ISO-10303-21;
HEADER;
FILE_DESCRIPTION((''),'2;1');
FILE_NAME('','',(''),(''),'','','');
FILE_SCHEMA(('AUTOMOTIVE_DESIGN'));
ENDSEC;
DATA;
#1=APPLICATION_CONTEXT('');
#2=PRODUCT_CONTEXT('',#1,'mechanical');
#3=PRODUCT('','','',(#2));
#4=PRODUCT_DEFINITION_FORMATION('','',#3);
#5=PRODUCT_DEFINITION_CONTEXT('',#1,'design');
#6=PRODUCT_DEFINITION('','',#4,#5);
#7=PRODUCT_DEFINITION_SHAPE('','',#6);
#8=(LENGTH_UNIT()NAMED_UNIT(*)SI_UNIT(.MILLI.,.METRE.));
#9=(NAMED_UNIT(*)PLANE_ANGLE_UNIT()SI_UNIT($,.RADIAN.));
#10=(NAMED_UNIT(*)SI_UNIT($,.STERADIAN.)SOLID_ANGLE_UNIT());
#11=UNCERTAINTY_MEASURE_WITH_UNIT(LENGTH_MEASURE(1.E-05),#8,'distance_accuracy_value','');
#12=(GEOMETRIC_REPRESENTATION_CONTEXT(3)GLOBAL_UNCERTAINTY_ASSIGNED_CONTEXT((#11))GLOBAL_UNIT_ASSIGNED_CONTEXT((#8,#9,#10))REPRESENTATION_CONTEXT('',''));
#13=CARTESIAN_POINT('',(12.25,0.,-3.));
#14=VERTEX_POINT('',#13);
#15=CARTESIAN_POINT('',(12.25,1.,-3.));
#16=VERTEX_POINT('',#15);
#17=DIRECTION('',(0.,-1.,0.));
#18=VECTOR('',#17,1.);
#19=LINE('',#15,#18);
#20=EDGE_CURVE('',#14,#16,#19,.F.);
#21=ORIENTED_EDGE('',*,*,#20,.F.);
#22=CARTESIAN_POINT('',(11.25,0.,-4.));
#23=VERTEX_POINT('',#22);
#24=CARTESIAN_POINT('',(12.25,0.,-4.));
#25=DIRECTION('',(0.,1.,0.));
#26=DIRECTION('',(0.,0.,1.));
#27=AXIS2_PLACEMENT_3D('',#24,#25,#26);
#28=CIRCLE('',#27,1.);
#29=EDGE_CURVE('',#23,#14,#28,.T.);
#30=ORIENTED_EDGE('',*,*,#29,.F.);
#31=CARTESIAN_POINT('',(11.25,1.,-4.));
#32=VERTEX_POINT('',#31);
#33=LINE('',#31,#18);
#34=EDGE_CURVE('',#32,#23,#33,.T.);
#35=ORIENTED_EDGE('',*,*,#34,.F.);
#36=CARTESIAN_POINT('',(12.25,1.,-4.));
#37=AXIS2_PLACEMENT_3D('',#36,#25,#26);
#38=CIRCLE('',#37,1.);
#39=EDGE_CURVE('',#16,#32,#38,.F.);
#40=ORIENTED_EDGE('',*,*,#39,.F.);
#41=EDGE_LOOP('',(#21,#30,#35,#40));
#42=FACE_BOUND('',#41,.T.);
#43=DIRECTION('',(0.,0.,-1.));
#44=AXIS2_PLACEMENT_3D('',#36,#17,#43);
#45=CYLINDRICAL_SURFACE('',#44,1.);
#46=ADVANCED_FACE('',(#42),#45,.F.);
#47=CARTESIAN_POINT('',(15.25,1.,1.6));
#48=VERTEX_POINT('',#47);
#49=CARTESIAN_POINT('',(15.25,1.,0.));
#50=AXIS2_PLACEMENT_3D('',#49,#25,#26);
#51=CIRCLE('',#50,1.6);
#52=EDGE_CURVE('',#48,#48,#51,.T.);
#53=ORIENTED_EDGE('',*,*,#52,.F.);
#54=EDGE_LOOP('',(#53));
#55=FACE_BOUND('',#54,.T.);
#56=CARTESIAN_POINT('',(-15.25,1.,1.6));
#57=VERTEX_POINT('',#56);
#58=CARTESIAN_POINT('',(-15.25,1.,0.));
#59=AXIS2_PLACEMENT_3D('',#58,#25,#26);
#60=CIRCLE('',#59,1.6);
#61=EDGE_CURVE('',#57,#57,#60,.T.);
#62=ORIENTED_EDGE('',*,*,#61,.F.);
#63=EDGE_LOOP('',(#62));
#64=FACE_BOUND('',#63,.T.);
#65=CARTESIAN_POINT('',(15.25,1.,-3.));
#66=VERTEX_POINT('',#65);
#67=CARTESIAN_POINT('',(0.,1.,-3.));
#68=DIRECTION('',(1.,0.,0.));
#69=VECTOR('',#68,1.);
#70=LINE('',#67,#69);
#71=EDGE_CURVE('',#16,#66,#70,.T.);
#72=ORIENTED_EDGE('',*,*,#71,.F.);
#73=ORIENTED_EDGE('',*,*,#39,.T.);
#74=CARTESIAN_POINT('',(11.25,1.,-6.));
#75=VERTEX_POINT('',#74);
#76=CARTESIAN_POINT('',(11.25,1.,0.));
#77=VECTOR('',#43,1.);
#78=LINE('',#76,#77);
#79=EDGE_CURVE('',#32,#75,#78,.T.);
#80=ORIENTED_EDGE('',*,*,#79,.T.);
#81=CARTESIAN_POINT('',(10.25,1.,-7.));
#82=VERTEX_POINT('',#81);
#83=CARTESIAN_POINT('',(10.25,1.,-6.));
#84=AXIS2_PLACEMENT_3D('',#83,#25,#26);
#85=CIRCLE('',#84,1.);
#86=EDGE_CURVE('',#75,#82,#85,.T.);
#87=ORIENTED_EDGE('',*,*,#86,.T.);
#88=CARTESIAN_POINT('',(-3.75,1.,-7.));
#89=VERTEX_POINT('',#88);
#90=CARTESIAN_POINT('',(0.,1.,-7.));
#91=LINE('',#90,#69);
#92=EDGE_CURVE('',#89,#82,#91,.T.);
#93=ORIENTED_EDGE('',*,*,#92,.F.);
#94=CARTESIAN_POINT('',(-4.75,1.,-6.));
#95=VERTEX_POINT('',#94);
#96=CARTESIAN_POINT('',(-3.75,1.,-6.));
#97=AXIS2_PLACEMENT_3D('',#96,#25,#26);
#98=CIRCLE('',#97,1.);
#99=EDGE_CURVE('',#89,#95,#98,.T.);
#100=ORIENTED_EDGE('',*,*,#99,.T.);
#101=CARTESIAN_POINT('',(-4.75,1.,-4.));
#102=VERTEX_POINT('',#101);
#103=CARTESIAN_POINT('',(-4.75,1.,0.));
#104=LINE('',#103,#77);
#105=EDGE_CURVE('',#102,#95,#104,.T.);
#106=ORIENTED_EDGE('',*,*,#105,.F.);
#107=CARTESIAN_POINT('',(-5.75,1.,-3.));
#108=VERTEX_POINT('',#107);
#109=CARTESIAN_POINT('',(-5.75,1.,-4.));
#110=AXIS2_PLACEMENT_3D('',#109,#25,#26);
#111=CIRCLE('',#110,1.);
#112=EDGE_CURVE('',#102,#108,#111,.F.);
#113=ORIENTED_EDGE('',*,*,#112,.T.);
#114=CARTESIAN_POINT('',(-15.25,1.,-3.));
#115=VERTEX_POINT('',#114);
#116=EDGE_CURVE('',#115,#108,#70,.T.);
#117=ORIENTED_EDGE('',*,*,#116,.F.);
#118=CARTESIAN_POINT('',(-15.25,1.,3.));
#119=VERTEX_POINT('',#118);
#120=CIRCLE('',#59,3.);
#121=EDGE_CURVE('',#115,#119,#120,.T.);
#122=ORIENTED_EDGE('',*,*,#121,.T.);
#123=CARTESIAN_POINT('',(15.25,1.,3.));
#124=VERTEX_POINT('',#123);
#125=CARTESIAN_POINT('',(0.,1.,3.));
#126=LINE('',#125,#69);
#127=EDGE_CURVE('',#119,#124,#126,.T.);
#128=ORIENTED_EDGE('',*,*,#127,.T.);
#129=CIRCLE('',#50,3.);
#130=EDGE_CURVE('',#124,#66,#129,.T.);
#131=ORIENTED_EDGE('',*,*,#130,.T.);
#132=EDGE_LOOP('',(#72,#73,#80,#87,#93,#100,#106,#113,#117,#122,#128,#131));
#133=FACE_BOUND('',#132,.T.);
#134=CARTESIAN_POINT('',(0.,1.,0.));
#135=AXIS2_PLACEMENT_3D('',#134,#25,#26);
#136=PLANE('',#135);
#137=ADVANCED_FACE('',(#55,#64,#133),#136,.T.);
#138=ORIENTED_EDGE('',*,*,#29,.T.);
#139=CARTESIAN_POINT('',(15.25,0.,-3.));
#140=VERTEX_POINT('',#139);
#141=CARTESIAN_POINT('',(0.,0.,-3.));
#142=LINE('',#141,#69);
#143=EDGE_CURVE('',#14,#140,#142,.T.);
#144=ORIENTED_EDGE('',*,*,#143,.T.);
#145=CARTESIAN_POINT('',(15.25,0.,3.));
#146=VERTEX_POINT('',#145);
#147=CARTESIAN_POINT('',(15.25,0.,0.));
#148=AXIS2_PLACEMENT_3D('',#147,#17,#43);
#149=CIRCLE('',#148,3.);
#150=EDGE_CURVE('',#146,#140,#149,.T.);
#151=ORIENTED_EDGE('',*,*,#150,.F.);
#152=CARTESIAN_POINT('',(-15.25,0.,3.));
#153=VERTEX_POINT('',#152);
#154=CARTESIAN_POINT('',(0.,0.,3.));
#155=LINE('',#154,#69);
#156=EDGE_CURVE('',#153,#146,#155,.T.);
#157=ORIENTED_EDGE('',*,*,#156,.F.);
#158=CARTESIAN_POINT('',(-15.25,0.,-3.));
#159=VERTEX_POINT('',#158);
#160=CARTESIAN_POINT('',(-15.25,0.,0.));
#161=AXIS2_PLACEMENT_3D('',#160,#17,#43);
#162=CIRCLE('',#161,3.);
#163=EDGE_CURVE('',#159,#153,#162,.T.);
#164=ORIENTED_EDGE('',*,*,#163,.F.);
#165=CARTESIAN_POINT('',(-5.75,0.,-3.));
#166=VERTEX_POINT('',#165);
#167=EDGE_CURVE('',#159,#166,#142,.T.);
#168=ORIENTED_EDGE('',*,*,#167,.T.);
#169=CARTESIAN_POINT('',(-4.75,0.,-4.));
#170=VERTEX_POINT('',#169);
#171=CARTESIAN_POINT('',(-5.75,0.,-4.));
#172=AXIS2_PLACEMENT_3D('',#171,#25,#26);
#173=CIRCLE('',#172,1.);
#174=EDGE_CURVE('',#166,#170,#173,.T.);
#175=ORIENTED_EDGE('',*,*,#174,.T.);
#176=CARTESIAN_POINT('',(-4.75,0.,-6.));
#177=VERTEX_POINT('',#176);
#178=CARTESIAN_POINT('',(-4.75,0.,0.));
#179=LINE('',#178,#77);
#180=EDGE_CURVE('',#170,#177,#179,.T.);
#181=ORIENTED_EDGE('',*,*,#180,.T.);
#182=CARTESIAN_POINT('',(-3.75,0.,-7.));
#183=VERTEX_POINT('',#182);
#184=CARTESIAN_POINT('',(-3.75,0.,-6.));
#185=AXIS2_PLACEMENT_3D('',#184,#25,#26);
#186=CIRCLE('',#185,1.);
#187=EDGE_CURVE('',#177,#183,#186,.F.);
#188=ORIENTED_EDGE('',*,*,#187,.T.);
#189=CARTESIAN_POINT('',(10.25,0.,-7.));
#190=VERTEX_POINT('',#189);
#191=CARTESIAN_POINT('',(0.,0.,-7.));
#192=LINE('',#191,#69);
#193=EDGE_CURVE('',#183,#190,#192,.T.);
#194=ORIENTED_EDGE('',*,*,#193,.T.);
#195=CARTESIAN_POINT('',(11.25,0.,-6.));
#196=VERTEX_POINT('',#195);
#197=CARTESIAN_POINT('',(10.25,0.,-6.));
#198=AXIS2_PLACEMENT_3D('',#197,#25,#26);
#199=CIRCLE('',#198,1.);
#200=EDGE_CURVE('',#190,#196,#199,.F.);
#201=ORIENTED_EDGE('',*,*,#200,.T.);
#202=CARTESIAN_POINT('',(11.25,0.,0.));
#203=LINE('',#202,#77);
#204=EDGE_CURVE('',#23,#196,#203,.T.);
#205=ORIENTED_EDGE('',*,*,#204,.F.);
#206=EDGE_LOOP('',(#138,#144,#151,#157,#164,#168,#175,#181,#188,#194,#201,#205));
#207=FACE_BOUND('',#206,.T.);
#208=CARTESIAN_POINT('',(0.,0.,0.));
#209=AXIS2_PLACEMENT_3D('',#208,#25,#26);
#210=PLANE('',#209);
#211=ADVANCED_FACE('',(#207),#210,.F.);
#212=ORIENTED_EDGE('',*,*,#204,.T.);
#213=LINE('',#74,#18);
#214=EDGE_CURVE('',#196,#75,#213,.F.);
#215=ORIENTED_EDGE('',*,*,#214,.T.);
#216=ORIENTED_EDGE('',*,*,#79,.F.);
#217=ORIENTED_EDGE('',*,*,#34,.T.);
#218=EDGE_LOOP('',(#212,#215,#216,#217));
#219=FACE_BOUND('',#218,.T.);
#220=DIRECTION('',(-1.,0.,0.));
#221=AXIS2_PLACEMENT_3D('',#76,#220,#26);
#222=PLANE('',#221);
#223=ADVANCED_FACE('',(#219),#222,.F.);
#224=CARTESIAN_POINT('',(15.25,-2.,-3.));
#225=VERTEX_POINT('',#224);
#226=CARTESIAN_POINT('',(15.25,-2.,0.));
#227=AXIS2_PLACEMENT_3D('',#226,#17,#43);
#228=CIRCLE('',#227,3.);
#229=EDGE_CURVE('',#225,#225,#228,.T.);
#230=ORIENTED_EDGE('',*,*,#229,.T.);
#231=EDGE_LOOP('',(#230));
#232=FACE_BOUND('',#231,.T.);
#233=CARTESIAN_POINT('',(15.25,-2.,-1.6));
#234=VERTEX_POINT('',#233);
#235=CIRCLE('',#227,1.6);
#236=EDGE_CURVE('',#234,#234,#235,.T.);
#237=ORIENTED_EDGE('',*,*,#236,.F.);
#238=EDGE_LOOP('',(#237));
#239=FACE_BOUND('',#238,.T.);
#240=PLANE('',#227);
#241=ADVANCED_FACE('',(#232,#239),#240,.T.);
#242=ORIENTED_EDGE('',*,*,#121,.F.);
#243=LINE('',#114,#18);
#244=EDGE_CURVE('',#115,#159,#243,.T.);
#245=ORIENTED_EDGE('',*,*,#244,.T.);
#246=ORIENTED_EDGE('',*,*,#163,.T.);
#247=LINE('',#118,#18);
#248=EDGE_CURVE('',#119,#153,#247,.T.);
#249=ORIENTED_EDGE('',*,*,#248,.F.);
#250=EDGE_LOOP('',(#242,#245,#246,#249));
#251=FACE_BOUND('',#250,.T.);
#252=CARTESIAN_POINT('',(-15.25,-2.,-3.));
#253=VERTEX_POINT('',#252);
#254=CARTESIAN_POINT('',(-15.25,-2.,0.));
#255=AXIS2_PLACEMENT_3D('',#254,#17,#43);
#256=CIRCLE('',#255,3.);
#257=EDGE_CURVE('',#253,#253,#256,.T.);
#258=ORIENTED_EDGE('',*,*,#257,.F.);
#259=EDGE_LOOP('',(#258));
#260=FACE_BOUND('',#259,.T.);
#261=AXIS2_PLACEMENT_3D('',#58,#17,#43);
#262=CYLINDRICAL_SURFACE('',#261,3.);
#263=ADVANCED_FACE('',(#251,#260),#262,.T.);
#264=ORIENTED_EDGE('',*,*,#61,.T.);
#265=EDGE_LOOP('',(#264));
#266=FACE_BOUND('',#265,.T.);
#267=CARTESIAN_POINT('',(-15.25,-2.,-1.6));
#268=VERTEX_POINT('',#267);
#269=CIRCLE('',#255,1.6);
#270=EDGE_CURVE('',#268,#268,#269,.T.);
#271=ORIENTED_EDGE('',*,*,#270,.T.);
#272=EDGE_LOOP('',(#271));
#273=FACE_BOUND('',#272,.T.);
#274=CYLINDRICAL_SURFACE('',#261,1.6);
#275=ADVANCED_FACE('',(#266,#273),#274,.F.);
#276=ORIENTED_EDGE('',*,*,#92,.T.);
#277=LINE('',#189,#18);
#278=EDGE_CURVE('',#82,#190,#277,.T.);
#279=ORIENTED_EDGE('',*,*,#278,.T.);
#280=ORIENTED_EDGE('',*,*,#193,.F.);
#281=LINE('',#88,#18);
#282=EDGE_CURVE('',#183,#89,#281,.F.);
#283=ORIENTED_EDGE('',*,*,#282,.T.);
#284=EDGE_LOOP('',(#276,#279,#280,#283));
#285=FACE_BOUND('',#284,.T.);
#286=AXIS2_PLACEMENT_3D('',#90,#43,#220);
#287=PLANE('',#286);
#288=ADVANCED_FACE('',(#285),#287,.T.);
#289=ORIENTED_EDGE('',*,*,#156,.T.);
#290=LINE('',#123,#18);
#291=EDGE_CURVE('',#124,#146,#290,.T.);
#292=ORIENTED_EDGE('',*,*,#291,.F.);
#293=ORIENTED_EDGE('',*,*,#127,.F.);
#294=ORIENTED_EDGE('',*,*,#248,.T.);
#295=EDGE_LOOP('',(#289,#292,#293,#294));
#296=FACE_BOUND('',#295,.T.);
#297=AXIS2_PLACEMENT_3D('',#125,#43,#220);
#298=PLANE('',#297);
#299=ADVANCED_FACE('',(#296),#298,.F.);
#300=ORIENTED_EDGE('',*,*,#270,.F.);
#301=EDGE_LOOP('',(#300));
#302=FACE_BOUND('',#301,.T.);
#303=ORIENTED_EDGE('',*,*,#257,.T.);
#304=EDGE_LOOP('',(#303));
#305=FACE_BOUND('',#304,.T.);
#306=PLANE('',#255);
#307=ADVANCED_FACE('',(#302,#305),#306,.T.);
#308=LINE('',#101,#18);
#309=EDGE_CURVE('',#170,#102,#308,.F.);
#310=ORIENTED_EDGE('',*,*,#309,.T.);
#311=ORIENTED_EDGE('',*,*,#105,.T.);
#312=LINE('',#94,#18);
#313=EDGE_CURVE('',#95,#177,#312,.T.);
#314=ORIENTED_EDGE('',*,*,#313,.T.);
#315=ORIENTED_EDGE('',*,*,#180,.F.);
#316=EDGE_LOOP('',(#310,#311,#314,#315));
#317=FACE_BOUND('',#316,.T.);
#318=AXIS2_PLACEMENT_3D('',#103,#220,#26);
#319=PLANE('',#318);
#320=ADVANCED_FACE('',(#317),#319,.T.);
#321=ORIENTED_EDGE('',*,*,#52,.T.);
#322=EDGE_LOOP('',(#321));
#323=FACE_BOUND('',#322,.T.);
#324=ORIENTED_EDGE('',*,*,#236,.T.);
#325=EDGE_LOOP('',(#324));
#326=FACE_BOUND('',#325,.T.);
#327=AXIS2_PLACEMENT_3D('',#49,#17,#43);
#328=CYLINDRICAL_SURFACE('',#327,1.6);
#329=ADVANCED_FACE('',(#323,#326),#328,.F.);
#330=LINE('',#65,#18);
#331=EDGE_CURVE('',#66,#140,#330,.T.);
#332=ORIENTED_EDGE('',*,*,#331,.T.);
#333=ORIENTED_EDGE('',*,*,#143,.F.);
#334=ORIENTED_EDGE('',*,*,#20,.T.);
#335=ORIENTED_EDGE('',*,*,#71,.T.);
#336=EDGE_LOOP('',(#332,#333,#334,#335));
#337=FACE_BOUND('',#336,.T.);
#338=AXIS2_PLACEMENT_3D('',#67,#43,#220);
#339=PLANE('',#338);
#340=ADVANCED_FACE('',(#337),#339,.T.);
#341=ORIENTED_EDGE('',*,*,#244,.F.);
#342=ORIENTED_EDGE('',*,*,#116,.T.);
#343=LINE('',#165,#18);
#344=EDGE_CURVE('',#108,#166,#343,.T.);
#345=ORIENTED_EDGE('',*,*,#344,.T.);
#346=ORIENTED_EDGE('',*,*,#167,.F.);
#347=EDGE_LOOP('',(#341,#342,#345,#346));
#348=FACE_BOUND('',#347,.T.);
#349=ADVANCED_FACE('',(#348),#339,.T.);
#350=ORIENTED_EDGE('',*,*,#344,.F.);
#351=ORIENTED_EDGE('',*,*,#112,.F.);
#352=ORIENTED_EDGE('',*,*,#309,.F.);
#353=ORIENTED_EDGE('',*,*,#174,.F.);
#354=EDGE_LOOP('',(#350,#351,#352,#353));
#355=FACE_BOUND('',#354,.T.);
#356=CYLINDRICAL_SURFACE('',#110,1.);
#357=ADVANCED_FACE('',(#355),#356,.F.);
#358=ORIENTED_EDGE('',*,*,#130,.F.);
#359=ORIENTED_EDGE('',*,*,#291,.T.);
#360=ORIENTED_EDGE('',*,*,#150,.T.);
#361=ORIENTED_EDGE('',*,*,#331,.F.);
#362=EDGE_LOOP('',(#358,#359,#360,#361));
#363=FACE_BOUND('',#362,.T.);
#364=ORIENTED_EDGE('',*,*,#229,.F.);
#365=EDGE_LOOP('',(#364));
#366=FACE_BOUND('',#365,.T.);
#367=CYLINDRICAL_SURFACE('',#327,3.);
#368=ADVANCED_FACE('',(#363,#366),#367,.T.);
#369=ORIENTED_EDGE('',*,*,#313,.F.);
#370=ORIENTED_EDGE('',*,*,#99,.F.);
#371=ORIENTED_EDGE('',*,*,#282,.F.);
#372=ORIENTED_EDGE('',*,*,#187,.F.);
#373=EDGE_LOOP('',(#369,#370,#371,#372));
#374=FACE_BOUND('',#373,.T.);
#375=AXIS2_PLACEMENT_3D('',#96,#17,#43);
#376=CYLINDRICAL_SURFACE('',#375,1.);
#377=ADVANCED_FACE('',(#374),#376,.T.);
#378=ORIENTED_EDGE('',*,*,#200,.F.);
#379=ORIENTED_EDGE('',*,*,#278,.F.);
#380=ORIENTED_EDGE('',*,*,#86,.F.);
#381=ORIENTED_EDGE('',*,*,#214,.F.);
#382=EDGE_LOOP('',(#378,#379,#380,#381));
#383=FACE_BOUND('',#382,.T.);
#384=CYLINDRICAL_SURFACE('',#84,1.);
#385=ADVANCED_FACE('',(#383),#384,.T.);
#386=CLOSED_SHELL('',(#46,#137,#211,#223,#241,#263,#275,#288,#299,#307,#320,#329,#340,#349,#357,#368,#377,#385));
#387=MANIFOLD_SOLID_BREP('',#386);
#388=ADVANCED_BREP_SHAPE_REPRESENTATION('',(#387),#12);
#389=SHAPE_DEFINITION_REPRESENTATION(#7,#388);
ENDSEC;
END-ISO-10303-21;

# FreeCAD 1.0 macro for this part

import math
import FreeCAD as App
import Part
import Sketcher
Q = App.Units.Quantity


def edges_at(feature, points):
    """Names of the edges that pass closest to the given points."""
    edges = feature.Shape.Edges
    near = lambda p: min(range(len(edges)), key=lambda i: edges[i].distToShape(Part.Vertex(*p))[0])
    return sorted({f"Edge{near(p) + 1}" for p in points})

doc = App.newDocument("Part")
body = doc.addObject("PartDesign::Body", "Body")

sketch1 = doc.addObject("Sketcher::SketchObject", "Sketch")
body.addObject(sketch1)
sketch1.AttachmentSupport = (doc.XZ_Plane, [""])
sketch1.MapMode = "FlatFace"
sketch1.addGeometry(Part.ArcOfCircle(Part.Circle(App.Vector(15.25, 0, 0), App.Vector(0, 0, 1), 3), math.radians(-90), math.radians(90)), False)
sketch1.addGeometry(Part.LineSegment(App.Vector(15.25, -3, 0), App.Vector(11.25, -3, 0)), False)
sketch1.addGeometry(Part.LineSegment(App.Vector(11.25, -3, 0), App.Vector(11.25, -7, 0)), False)
sketch1.addGeometry(Part.LineSegment(App.Vector(11.25, -7, 0), App.Vector(-4.75, -7, 0)), False)
sketch1.addGeometry(Part.LineSegment(App.Vector(-4.75, -7, 0), App.Vector(-4.75, -3, 0)), False)
sketch1.addGeometry(Part.LineSegment(App.Vector(-4.75, -3, 0), App.Vector(-15.25, -3, 0)), False)
sketch1.addGeometry(Part.ArcOfCircle(Part.Circle(App.Vector(-15.25, 0, 0), App.Vector(0, 0, 1), 3), math.radians(90), math.radians(270)), False)
sketch1.addGeometry(Part.LineSegment(App.Vector(-15.25, 3, 0), App.Vector(15.25, 3, 0)), False)
sketch1.addGeometry(Part.Circle(App.Vector(-15.25, 0, 0), App.Vector(0, 0, 1), 1.6), False)
sketch1.addGeometry(Part.Circle(App.Vector(15.25, 0, 0), App.Vector(0, 0, 1), 1.6), False)
sketch1.addConstraint(Sketcher.Constraint("Tangent", 0, 1, 1, 1))
sketch1.addConstraint(Sketcher.Constraint("Coincident", 1, 2, 2, 1))
sketch1.addConstraint(Sketcher.Constraint("Coincident", 2, 2, 3, 1))
sketch1.addConstraint(Sketcher.Constraint("Coincident", 3, 2, 4, 1))
sketch1.addConstraint(Sketcher.Constraint("Coincident", 4, 2, 5, 1))
sketch1.addConstraint(Sketcher.Constraint("Tangent", 5, 2, 6, 2))
sketch1.addConstraint(Sketcher.Constraint("Tangent", 6, 1, 7, 1))
sketch1.addConstraint(Sketcher.Constraint("Tangent", 7, 2, 0, 2))
sketch1.addConstraint(Sketcher.Constraint("Horizontal", 1))
sketch1.addConstraint(Sketcher.Constraint("Vertical", 2))
sketch1.addConstraint(Sketcher.Constraint("Horizontal", 3))
sketch1.addConstraint(Sketcher.Constraint("Vertical", 4))
sketch1.addConstraint(Sketcher.Constraint("Horizontal", 5))
sketch1.addConstraint(Sketcher.Constraint("Horizontal", 7))
sketch1.addConstraint(Sketcher.Constraint("Coincident", 8, 3, 6, 3))
sketch1.addConstraint(Sketcher.Constraint("Coincident", 9, 3, 0, 3))
sketch1.addConstraint(Sketcher.Constraint("Equal", 0, 6))
sketch1.addConstraint(Sketcher.Constraint("Equal", 8, 9))
sketch1.addConstraint(Sketcher.Constraint("Symmetric", 0, 3, 6, 3, -1, 1))
sketch1.addConstraint(Sketcher.Constraint("Equal", 1, 2))
sketch1.addConstraint(Sketcher.Constraint("Radius", 0, Q("3 mm")))
sketch1.addConstraint(Sketcher.Constraint("Diameter", 8, Q("3.2 mm")))
sketch1.addConstraint(Sketcher.Constraint("DistanceX", 1, 2, 1, 1, Q("4 mm")))
sketch1.addConstraint(Sketcher.Constraint("DistanceX", 3, 2, 3, 1, Q("16 mm")))
sketch1.addConstraint(Sketcher.Constraint("DistanceX", 5, 2, 5, 1, Q("10.5 mm")))
pad1 = doc.addObject("PartDesign::Pad", "Pad")
body.addObject(pad1)
pad1.Profile = sketch1
pad1.Length = 1
pad1.Reversed = True
doc.recompute()

fillet = doc.addObject("PartDesign::Fillet", "Fillet")
body.addObject(fillet)
fillet.Base = (pad1, edges_at(pad1, [
    (-4.75, 0.5, -3),
    (-4.75, 0.5, -7),
    (11.25, 0.5, -7),
    (11.25, 0.5, -3),
]))
fillet.Radius = 1

sketch2 = doc.addObject("Sketcher::SketchObject", "Sketch001")
body.addObject(sketch2)
sketch2.AttachmentSupport = (doc.XZ_Plane, [""])
sketch2.MapMode = "FlatFace"
sketch2.AttachmentOffset = App.Placement(App.Vector(0, 0, 2), App.Rotation())
sketch2.addGeometry(Part.Circle(App.Vector(-15.25, 0, 0), App.Vector(0, 0, 1), 3), False)
sketch2.addGeometry(Part.Circle(App.Vector(-15.25, 0, 0), App.Vector(0, 0, 1), 1.6), False)
sketch2.addGeometry(Part.Circle(App.Vector(15.25, 0, 0), App.Vector(0, 0, 1), 3), False)
sketch2.addGeometry(Part.Circle(App.Vector(15.25, 0, 0), App.Vector(0, 0, 1), 1.6), False)
sketch2.addConstraint(Sketcher.Constraint("Coincident", 1, 3, 0, 3))
sketch2.addConstraint(Sketcher.Constraint("Coincident", 3, 3, 2, 3))
sketch2.addConstraint(Sketcher.Constraint("Equal", 0, 2))
sketch2.addConstraint(Sketcher.Constraint("Equal", 1, 3))
sketch2.addConstraint(Sketcher.Constraint("Symmetric", 0, 3, 2, 3, -1, 1))
sketch2.addConstraint(Sketcher.Constraint("PointOnObject", 0, 3, -1))
sketch2.addConstraint(Sketcher.Constraint("Diameter", 0, Q("6 mm")))
sketch2.addConstraint(Sketcher.Constraint("Diameter", 1, Q("3.2 mm")))
sketch2.addConstraint(Sketcher.Constraint("DistanceX", 0, 3, 2, 3, Q("30.5 mm")))
pad2 = doc.addObject("PartDesign::Pad", "Pad001")
body.addObject(pad2)
pad2.Profile = sketch2
pad2.Length = 2
pad2.Reversed = True

doc.recompute()
